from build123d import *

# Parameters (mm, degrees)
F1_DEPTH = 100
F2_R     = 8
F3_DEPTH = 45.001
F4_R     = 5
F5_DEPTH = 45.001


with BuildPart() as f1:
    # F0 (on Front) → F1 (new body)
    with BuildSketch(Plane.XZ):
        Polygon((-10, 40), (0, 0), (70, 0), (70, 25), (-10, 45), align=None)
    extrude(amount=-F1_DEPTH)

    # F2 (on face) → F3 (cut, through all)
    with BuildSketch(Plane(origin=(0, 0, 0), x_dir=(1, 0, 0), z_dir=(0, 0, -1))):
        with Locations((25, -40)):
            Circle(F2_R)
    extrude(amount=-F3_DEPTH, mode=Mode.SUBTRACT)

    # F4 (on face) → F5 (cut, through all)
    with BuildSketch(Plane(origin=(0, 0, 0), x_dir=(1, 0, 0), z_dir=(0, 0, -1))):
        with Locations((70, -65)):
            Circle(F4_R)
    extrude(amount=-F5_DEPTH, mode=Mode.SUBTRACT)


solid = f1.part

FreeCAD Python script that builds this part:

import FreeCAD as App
import Part
import Sketcher
from FreeCAD import Vector

doc = App.newDocument("Part")
body = doc.addObject("PartDesign::Body", "Body")

# Sketch on XZ plane
sketch1 = body.newObject("Sketcher::SketchObject", "Sketch")
sketch1.AttachmentSupport = (doc.getObject("XZ_Plane"), [""])
sketch1.MapMode = "FlatFace"
sketch1.addGeometry(Part.LineSegment(Vector(-10, 40, 0), Vector(0, 0, 0)), False)
sketch1.addGeometry(Part.LineSegment(Vector(0, 0, 0), Vector(70, 0, 0)), False)
sketch1.addGeometry(Part.LineSegment(Vector(70, 0, 0), Vector(70, 25, 0)), False)
sketch1.addGeometry(Part.LineSegment(Vector(70, 25, 0), Vector(-10, 45, 0)), False)
sketch1.addGeometry(Part.LineSegment(Vector(-10, 45, 0), Vector(-10, 40, 0)), False)
sketch1.addConstraint(Sketcher.Constraint("Coincident", 0, 2, 1, 1))
sketch1.addConstraint(Sketcher.Constraint("Coincident", 1, 2, 2, 1))
sketch1.addConstraint(Sketcher.Constraint("Coincident", 2, 2, 3, 1))
sketch1.addConstraint(Sketcher.Constraint("Coincident", 3, 2, 4, 1))
sketch1.addConstraint(Sketcher.Constraint("Coincident", 4, 2, 0, 1))
sketch1.addConstraint(Sketcher.Constraint("Horizontal", 1))
sketch1.addConstraint(Sketcher.Constraint("Vertical", 2))
sketch1.addConstraint(Sketcher.Constraint("Vertical", 4))
sketch1.addConstraint(Sketcher.Constraint("Coincident", 0, 2, -1, 1))
sketch1.addConstraint(Sketcher.Constraint("DistanceX", 1, 1, 1, 2, 70.0))
sketch1.addConstraint(Sketcher.Constraint("DistanceY", 2, 1, 2, 2, 25.0))
sketch1.addConstraint(Sketcher.Constraint("DistanceY", 4, 2, 4, 1, 5.0))
sketch1.addConstraint(Sketcher.Constraint("DistanceX", 3, 2, -1, 1, 10.0))
sketch1.addConstraint(Sketcher.Constraint("DistanceY", -1, 1, 3, 2, 45.0))
pad1 = body.newObject("PartDesign::Pad", "Pad")
pad1.Profile = sketch1
pad1.Length = 100
pad1.Reversed = True

# Sketch on XY plane
sketch2 = body.newObject("Sketcher::SketchObject", "Sketch001")
sketch2.AttachmentSupport = (doc.getObject("XY_Plane"), [""])
sketch2.MapMode = "FlatFace"
sketch2.addGeometry(Part.Circle(Vector(25, 40, 0), Vector(0, 0, 1), 8), False)
sketch2.addConstraint(Sketcher.Constraint("Diameter", 0, 16.0))
sketch2.addConstraint(Sketcher.Constraint("DistanceX", -1, 1, 0, 3, 25.0))
sketch2.addConstraint(Sketcher.Constraint("DistanceY", -1, 1, 0, 3, 40.0))
pocket1 = body.newObject("PartDesign::Pocket", "Pocket")
pocket1.Profile = sketch2
pocket1.Type = "ThroughAll"
pocket1.Reversed = True

# Sketch on XY plane
sketch3 = body.newObject("Sketcher::SketchObject", "Sketch002")
sketch3.AttachmentSupport = (doc.getObject("XY_Plane"), [""])
sketch3.MapMode = "FlatFace"
sketch3.addGeometry(Part.Circle(Vector(70, 65, 0), Vector(0, 0, 1), 5), False)
sketch3.addConstraint(Sketcher.Constraint("Diameter", 0, 10.0))
sketch3.addConstraint(Sketcher.Constraint("DistanceX", -1, 1, 0, 3, 70.0))
sketch3.addConstraint(Sketcher.Constraint("DistanceY", -1, 1, 0, 3, 65.0))
pocket2 = body.newObject("PartDesign::Pocket", "Pocket001")
pocket2.Profile = sketch3
pocket2.Type = "ThroughAll"
pocket2.Reversed = True

doc.recompute()
